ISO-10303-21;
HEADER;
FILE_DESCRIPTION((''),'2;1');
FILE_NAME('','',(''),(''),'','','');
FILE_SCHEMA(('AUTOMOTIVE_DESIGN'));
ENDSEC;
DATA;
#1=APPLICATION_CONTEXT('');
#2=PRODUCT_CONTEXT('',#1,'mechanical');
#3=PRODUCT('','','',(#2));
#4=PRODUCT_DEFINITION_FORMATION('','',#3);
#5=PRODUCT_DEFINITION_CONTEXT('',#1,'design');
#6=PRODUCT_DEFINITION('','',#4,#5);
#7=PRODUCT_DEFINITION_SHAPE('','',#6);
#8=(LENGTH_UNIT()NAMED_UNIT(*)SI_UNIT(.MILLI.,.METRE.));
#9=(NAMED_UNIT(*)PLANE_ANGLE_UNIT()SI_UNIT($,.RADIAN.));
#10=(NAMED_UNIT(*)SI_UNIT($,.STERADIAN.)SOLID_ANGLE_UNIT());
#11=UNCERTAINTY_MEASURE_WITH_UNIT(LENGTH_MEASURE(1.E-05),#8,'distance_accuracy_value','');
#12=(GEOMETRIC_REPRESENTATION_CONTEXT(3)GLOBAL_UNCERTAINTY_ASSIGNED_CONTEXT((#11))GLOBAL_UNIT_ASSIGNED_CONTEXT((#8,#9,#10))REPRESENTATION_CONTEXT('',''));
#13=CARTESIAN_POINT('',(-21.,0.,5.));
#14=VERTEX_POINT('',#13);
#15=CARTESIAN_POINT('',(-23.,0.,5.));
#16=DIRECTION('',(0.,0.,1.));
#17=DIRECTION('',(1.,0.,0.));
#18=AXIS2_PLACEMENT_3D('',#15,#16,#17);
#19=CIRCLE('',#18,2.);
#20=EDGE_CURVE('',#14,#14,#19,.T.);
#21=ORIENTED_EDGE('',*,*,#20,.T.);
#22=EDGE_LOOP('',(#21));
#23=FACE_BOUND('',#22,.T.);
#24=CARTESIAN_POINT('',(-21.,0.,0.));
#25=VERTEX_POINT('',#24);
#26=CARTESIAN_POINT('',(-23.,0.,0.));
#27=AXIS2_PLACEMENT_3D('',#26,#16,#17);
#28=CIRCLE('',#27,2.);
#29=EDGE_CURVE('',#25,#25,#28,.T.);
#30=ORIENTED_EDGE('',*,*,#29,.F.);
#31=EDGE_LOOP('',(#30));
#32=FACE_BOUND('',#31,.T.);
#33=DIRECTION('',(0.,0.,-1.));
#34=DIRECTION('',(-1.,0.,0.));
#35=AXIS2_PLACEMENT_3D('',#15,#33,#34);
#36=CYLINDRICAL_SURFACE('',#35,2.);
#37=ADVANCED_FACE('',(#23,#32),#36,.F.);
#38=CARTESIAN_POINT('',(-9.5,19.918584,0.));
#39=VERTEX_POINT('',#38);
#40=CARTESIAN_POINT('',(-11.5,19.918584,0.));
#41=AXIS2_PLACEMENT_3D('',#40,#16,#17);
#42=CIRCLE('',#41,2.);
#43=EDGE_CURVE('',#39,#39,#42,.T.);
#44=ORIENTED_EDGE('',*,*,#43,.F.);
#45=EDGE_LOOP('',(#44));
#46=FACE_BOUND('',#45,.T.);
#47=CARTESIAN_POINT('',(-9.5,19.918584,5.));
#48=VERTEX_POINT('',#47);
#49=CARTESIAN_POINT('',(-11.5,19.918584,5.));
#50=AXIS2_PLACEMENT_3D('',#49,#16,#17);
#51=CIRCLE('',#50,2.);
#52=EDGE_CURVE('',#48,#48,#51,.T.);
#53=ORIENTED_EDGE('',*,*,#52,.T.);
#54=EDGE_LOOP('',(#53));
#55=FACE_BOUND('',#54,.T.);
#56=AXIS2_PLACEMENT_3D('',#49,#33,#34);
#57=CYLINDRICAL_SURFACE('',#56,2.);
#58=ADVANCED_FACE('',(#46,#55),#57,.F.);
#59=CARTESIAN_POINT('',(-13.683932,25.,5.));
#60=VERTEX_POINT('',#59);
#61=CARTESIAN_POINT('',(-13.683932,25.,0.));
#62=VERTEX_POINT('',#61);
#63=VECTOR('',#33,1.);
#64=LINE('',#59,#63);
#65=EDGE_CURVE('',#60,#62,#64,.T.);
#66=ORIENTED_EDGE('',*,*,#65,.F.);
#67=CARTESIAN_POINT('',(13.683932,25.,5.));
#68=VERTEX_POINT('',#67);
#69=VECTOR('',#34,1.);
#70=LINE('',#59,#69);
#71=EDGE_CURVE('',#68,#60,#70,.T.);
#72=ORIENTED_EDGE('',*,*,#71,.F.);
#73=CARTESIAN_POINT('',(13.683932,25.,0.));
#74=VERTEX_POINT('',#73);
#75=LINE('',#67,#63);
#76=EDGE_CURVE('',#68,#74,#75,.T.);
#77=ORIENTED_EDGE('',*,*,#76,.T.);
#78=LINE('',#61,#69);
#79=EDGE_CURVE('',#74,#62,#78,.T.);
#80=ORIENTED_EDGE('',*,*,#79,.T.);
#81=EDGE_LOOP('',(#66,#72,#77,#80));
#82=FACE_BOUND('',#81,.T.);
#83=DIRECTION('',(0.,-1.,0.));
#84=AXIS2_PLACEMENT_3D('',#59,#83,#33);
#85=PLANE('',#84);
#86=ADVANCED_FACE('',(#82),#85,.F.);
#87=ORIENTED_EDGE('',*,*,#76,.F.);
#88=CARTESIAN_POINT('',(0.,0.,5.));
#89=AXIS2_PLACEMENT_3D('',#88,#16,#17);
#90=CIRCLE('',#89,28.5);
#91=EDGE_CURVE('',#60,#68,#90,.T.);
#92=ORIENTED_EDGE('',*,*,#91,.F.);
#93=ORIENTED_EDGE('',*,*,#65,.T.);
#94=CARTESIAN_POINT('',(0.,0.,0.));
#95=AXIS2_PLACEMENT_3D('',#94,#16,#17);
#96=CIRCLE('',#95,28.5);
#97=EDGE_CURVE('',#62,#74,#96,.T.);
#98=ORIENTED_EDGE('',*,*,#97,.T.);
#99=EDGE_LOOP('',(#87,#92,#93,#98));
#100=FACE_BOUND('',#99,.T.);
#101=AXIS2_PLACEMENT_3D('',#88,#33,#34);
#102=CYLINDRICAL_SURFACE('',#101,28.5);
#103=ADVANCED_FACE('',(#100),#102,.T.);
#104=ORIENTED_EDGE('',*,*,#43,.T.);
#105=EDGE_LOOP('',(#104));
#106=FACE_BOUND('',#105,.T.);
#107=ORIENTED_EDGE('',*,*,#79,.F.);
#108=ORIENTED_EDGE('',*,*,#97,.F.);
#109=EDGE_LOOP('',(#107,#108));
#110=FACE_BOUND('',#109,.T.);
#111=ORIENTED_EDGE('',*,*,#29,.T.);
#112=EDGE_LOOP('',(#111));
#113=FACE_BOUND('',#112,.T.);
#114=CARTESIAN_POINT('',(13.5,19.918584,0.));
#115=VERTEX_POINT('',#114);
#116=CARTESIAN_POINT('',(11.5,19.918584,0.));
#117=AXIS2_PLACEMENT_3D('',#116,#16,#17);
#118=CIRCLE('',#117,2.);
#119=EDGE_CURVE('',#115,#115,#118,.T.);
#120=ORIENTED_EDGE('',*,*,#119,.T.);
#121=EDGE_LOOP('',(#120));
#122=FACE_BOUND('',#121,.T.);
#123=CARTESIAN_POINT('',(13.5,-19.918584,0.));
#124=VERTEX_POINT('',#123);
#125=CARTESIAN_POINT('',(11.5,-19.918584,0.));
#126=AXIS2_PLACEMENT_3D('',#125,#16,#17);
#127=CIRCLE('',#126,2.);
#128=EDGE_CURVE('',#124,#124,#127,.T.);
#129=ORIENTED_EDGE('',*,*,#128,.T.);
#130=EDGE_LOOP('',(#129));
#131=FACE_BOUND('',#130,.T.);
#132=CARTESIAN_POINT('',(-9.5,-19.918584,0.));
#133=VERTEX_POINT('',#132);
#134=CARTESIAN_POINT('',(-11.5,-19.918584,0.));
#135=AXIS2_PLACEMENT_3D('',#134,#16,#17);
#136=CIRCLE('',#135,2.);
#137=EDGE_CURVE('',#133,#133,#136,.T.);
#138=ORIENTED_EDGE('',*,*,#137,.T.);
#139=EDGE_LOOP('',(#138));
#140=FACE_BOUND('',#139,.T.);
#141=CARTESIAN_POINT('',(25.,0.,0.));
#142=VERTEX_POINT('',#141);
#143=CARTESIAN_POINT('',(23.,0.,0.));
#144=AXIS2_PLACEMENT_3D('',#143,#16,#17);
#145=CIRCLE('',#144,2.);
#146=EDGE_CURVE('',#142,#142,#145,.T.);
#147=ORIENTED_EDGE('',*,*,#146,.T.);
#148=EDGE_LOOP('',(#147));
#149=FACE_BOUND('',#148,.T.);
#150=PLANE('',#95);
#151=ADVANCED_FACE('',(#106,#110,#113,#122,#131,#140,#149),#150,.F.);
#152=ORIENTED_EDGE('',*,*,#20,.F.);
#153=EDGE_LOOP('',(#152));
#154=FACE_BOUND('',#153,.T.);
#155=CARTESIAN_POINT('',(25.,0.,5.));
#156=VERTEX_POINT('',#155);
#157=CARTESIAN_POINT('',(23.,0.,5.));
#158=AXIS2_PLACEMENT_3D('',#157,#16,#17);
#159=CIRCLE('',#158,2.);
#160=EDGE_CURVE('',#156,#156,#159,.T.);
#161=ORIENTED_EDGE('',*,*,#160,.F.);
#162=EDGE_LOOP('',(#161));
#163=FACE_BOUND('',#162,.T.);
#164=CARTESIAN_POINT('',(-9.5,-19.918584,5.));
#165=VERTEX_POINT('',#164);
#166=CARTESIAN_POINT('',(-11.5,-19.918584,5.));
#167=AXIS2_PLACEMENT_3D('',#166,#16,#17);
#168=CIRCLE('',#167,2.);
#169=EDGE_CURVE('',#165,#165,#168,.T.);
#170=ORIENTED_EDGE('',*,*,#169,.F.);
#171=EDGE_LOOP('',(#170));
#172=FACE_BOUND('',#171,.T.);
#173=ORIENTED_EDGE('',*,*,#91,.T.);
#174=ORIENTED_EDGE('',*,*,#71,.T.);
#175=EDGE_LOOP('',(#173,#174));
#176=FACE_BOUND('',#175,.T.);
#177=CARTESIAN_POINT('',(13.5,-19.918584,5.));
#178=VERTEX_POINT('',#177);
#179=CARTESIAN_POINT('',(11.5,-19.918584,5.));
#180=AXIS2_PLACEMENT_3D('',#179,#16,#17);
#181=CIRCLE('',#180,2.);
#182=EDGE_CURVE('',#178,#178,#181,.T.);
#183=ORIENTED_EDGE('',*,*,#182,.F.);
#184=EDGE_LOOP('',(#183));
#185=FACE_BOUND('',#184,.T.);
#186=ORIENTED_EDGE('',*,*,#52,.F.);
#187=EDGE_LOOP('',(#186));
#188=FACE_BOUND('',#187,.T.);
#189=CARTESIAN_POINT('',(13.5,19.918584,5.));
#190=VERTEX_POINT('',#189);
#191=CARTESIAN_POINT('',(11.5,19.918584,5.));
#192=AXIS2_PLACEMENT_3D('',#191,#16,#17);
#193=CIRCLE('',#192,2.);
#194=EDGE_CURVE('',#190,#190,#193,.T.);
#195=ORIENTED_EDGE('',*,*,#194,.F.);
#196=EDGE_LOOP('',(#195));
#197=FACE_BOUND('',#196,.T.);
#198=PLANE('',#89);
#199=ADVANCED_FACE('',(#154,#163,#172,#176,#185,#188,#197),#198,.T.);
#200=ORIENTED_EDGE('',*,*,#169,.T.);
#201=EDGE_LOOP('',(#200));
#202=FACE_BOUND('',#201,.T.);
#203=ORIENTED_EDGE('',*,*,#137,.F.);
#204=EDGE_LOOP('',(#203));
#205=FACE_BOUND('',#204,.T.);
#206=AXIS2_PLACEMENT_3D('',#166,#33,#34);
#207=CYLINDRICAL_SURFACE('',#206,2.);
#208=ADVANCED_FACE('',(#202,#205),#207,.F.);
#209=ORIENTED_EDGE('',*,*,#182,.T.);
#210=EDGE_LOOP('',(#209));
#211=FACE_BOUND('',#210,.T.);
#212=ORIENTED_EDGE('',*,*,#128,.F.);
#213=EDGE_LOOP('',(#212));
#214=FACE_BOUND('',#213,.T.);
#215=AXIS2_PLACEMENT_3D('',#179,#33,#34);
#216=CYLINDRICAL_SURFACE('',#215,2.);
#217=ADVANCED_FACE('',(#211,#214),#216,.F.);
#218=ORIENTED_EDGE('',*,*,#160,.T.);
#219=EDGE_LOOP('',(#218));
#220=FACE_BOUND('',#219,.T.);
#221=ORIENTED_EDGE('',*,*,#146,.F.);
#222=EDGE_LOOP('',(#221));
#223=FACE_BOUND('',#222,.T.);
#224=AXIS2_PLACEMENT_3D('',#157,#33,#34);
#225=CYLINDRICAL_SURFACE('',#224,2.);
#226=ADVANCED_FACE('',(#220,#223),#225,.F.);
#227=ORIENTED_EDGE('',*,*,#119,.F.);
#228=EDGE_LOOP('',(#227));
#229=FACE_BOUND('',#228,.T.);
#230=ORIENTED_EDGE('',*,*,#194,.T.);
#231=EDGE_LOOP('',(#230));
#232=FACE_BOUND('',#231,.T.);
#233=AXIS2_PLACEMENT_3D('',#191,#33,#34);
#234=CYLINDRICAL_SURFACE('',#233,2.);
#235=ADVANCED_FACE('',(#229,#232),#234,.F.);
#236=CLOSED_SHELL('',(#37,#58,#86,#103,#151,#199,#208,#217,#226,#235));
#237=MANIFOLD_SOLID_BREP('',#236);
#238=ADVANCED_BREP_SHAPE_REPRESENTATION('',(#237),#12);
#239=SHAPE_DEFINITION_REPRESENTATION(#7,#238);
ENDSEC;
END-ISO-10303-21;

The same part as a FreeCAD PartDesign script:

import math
import FreeCAD as App
import Part
import Sketcher
from FreeCAD import Vector

doc = App.newDocument("Part")
body = doc.addObject("PartDesign::Body", "Body")

# Sketch on XY plane
sketch1 = body.newObject("Sketcher::SketchObject", "Sketch")
sketch1.AttachmentSupport = (doc.getObject("XY_Plane"), [""])
sketch1.MapMode = "FlatFace"
sketch1.addGeometry([
    Part.LineSegment(Vector(13.7, 25, 0), Vector(-13.7, 25, 0)),  # 0
    Part.ArcOfCircle(Part.Circle(Vector(0, 0, 0), Vector(0, 0, 1), 28.5), math.radians(119), math.radians(421)),  # 1
    Part.Circle(Vector(11.5, -19.9, 0), Vector(0, 0, 1), 2),  # 2
    Part.Circle(Vector(-11.5, -19.9, 0), Vector(0, 0, 1), 2),  # 3
    Part.Circle(Vector(23, 0, 0), Vector(0, 0, 1), 2),  # 4
    Part.Circle(Vector(11.5, 19.9, 0), Vector(0, 0, 1), 2),  # 5
    Part.Circle(Vector(-23, 0, 0), Vector(0, 0, 1), 2),  # 6
    Part.Circle(Vector(-11.5, 19.9, 0), Vector(0, 0, 1), 2),  # 7
], False)
sketch1.addConstraint([
    Sketcher.Constraint("Coincident", 0, 1, 1, 2),
    Sketcher.Constraint("Coincident", 1, 1, 0, 2),
    Sketcher.Constraint("Horizontal", 0),
    Sketcher.Constraint("Coincident", 1, 3, -1, 1),
    Sketcher.Constraint("Equal", 2, 3),
    Sketcher.Constraint("Equal", 3, 4),
    Sketcher.Constraint("Equal", 4, 5),
    Sketcher.Constraint("Equal", 5, 6),
    Sketcher.Constraint("Equal", 6, 7),
    Sketcher.Constraint("Symmetric", 3, 3, 5, 3, -1, 1),
    Sketcher.Constraint("Symmetric", 4, 3, 6, 3, -1, 1),
    Sketcher.Constraint("Symmetric", 2, 3, 7, 3, -1, 1),
    Sketcher.Constraint("Symmetric", 2, 3, 3, 3, -2),
    Sketcher.Constraint("PointOnObject", 4, 3, -1),
    Sketcher.Constraint("Diameter", 2, 4.0),
    Sketcher.Constraint("Radius", 1, 28.5),
    Sketcher.Constraint("DistanceX", -1, 1, 4, 3, 23.0),
    Sketcher.Constraint("DistanceY", -1, 1, 0, 1, 25.0),
    Sketcher.Constraint("DistanceX", 3, 3, 2, 3, 23.0),
    Sketcher.Constraint("DistanceY", 2, 3, 5, 3, 39.837169),
])
pad1 = body.newObject("PartDesign::Pad", "Pad")
pad1.Profile = sketch1
pad1.Length = 5

doc.recompute()
